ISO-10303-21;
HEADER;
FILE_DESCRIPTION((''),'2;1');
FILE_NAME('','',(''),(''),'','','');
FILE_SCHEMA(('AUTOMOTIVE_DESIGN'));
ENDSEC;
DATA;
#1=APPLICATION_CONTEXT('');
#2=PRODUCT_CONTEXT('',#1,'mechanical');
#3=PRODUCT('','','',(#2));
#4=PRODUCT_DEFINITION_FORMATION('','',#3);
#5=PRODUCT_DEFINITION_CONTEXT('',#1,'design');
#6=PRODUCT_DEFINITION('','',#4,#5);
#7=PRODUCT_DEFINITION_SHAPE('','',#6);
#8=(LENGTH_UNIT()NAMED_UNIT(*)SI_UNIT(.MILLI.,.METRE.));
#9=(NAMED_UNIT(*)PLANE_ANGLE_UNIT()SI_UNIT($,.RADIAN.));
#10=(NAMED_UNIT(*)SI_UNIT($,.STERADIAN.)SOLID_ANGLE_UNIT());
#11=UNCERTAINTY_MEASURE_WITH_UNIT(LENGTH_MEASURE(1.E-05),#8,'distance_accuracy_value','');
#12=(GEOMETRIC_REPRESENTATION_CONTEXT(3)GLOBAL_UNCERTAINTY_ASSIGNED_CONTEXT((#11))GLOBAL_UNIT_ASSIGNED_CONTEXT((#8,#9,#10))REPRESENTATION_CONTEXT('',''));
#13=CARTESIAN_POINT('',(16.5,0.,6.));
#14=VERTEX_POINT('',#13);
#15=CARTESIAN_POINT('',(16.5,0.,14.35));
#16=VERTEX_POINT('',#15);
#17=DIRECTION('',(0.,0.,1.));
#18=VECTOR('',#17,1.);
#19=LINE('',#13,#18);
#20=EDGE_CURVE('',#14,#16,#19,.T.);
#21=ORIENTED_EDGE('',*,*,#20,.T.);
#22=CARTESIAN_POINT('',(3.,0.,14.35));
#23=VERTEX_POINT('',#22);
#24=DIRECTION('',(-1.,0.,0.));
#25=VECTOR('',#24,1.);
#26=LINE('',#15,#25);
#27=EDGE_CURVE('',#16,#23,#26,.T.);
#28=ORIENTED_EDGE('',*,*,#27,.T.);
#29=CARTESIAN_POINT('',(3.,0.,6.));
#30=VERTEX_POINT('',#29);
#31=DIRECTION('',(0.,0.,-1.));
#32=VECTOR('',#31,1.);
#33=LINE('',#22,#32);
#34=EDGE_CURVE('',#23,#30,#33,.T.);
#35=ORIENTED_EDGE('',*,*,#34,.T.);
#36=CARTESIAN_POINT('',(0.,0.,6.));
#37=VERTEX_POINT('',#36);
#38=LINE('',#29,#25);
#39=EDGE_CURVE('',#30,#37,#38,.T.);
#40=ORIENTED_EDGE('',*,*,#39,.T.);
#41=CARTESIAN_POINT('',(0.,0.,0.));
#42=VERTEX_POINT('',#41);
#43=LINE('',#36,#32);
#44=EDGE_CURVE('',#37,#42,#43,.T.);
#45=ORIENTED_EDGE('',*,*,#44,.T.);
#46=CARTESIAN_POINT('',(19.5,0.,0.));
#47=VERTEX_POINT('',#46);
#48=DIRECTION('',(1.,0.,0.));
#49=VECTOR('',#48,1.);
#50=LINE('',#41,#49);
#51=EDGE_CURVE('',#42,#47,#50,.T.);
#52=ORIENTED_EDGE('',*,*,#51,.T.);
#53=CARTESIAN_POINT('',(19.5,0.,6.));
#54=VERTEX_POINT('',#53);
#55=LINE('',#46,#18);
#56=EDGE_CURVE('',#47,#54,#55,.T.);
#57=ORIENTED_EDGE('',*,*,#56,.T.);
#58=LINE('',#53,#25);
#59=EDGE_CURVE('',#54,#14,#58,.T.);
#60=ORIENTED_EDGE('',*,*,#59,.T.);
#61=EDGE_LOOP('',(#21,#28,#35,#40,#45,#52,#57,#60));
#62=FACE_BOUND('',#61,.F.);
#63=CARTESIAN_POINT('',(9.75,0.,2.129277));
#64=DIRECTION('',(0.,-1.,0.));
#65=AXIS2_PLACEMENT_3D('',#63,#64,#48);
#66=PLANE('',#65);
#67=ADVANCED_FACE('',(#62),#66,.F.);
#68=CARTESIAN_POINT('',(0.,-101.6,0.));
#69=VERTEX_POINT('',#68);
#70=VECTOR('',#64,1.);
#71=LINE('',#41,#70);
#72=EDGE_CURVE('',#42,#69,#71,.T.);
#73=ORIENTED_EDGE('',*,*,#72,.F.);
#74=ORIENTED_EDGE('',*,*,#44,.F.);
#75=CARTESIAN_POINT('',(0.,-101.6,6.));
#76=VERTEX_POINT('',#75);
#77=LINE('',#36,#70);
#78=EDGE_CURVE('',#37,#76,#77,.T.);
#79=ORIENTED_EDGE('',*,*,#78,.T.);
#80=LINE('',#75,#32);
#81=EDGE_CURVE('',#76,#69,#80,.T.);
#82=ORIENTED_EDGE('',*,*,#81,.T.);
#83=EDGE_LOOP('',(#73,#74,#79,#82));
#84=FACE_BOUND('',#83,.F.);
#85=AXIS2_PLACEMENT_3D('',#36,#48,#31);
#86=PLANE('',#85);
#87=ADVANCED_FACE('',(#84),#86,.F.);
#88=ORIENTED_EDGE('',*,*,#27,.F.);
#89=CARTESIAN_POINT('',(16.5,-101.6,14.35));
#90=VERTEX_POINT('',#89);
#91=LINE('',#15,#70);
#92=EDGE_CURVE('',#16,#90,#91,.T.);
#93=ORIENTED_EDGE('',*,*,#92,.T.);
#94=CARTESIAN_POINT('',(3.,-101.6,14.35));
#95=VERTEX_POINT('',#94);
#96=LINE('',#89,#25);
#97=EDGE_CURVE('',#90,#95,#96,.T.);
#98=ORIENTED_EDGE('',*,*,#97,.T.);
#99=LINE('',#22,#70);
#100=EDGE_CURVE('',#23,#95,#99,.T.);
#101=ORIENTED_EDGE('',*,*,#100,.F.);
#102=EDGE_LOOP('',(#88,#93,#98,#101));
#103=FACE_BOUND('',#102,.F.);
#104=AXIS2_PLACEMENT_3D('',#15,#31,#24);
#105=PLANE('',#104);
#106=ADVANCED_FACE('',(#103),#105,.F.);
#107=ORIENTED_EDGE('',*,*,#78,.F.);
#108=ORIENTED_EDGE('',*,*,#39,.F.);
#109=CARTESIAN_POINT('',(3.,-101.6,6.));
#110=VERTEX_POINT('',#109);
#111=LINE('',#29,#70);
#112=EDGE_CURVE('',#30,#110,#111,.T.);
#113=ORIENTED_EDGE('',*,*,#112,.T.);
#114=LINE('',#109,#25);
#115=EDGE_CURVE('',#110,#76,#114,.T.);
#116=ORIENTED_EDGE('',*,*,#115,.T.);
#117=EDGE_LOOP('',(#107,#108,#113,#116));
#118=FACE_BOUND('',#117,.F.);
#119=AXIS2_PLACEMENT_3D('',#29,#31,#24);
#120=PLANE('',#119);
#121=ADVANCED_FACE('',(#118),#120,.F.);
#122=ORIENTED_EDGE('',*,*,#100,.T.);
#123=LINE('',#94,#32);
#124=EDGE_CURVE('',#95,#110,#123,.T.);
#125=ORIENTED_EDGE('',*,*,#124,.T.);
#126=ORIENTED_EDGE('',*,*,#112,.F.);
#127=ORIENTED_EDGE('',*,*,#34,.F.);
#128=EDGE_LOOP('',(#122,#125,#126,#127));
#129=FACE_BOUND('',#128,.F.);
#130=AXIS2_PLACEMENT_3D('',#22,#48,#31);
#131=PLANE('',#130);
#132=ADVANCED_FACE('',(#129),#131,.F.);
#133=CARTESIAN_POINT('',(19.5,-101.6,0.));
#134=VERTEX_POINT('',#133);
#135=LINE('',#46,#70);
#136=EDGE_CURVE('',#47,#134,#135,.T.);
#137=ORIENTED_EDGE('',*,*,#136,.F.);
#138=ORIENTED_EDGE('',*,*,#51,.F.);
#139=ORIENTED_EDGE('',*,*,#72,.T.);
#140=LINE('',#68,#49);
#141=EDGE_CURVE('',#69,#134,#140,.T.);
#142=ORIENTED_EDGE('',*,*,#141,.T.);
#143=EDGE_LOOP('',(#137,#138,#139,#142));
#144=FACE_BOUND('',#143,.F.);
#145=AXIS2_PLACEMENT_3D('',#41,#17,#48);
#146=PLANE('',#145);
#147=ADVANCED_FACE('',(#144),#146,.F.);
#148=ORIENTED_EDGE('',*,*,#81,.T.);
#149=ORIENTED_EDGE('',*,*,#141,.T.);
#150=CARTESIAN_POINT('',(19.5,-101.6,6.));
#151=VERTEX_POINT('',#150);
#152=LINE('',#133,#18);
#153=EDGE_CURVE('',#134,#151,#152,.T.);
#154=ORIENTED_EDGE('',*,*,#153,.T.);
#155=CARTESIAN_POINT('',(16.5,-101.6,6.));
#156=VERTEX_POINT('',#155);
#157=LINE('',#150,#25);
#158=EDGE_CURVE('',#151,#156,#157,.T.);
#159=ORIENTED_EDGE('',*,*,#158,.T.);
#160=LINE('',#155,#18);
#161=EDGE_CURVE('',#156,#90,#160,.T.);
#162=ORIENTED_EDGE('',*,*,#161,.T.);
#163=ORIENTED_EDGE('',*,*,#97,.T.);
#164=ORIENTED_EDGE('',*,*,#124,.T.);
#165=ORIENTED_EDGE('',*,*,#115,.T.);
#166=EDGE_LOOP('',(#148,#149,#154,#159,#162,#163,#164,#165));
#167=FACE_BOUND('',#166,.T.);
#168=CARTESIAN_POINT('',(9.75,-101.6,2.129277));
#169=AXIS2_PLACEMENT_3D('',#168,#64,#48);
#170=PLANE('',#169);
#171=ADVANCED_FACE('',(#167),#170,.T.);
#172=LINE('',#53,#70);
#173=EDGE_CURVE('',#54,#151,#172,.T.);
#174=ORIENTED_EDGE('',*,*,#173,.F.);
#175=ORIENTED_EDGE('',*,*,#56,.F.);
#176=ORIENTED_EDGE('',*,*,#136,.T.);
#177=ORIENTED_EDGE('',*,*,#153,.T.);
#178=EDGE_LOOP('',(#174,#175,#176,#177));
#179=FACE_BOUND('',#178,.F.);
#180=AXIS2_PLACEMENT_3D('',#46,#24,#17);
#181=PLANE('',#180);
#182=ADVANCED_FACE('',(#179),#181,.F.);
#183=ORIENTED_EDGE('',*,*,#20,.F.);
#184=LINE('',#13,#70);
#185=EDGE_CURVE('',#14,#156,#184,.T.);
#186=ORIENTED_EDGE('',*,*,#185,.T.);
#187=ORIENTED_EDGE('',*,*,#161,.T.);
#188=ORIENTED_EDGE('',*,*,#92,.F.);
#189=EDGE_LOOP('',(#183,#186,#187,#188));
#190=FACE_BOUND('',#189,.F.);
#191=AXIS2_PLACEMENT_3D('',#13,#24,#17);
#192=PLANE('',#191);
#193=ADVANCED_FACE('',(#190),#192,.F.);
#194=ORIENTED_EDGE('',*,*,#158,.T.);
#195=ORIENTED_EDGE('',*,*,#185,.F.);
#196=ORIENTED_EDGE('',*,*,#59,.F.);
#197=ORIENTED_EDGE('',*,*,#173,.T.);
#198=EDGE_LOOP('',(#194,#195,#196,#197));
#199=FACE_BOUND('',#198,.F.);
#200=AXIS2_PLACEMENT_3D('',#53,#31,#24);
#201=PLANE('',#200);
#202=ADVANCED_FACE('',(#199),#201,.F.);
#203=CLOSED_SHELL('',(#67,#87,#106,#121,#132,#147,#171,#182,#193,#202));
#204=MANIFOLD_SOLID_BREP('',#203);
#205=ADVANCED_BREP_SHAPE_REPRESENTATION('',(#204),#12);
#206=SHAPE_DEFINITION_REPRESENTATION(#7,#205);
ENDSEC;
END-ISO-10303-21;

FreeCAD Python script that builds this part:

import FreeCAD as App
import Part
import Sketcher
Q = App.Units.Quantity

doc = App.newDocument("Part")
params = doc.addObject("Spreadsheet::Sheet", "Params")
for row, (alias, value) in enumerate([
    ("sketch1_width", "3 mm"),
    ("sketch1_height", "6 mm"),
    ("sketch1_width2", "19.5 mm"),
    ("sketch1_height2", "8.35 mm"),
    ("pad1_length", "101.6 mm"),
], start=1):
    params.set(f"A{row}", alias)
    params.set(f"B{row}", "=" + value)
    params.setAlias(f"B{row}", alias)

body = doc.addObject("PartDesign::Body", "Body")

sketch1 = body.newObject("Sketcher::SketchObject", "Sketch")
sketch1.AttachmentSupport = (doc.getObject("XZ_Plane"), [""])
sketch1.MapMode = "FlatFace"
sketch1.addGeometry([
    Part.LineSegment(App.Vector(0, 6, 0), App.Vector(0, 0, 0)),
    Part.LineSegment(App.Vector(0, 0, 0), App.Vector(19.5, 0, 0)),
    Part.LineSegment(App.Vector(19.5, 0, 0), App.Vector(19.5, 6, 0)),
    Part.LineSegment(App.Vector(19.5, 6, 0), App.Vector(16.5, 6, 0)),
    Part.LineSegment(App.Vector(16.5, 6, 0), App.Vector(16.5, 14.3, 0)),
    Part.LineSegment(App.Vector(16.5, 14.3, 0), App.Vector(3, 14.3, 0)),
    Part.LineSegment(App.Vector(3, 14.3, 0), App.Vector(3, 6, 0)),
    Part.LineSegment(App.Vector(3, 6, 0), App.Vector(0, 6, 0)),
], False)
sketch1.addConstraint([
    Sketcher.Constraint("Coincident", 0, 2, 1, 1),
    Sketcher.Constraint("Coincident", 1, 2, 2, 1),
    Sketcher.Constraint("Coincident", 2, 2, 3, 1),
    Sketcher.Constraint("Coincident", 3, 2, 4, 1),
    Sketcher.Constraint("Coincident", 4, 2, 5, 1),
    Sketcher.Constraint("Coincident", 5, 2, 6, 1),
    Sketcher.Constraint("Coincident", 6, 2, 7, 1),
    Sketcher.Constraint("Coincident", 7, 2, 0, 1),
    Sketcher.Constraint("Vertical", 0),
    Sketcher.Constraint("Horizontal", 1),
    Sketcher.Constraint("Vertical", 2),
    Sketcher.Constraint("Horizontal", 3),
    Sketcher.Constraint("Vertical", 4),
    Sketcher.Constraint("Horizontal", 5),
    Sketcher.Constraint("Vertical", 6),
    Sketcher.Constraint("Horizontal", 7),
    Sketcher.Constraint("Coincident", 0, 2, -1, 1),
    Sketcher.Constraint("Horizontal", 3, 2, 6, 2),
    Sketcher.Constraint("Equal", 3, 7),
    Sketcher.Constraint("DistanceX", 3, 2, 3, 1, Q("3 mm")),
    Sketcher.Constraint("DistanceY", 0, 2, 0, 1, Q("6 mm")),
    Sketcher.Constraint("DistanceX", 1, 1, 1, 2, Q("19.5 mm")),
    Sketcher.Constraint("DistanceY", 4, 1, 4, 2, Q("8.35 mm")),
])
sketch1.setExpression("Constraints[19]", "Params.sketch1_width")
sketch1.setExpression("Constraints[20]", "Params.sketch1_height")
sketch1.setExpression("Constraints[21]", "Params.sketch1_width2")
sketch1.setExpression("Constraints[22]", "Params.sketch1_height2")
pad1 = body.newObject("PartDesign::Pad", "Pad")
pad1.Profile = sketch1
pad1.setExpression("Length", "Params.pad1_length")

doc.recompute()
